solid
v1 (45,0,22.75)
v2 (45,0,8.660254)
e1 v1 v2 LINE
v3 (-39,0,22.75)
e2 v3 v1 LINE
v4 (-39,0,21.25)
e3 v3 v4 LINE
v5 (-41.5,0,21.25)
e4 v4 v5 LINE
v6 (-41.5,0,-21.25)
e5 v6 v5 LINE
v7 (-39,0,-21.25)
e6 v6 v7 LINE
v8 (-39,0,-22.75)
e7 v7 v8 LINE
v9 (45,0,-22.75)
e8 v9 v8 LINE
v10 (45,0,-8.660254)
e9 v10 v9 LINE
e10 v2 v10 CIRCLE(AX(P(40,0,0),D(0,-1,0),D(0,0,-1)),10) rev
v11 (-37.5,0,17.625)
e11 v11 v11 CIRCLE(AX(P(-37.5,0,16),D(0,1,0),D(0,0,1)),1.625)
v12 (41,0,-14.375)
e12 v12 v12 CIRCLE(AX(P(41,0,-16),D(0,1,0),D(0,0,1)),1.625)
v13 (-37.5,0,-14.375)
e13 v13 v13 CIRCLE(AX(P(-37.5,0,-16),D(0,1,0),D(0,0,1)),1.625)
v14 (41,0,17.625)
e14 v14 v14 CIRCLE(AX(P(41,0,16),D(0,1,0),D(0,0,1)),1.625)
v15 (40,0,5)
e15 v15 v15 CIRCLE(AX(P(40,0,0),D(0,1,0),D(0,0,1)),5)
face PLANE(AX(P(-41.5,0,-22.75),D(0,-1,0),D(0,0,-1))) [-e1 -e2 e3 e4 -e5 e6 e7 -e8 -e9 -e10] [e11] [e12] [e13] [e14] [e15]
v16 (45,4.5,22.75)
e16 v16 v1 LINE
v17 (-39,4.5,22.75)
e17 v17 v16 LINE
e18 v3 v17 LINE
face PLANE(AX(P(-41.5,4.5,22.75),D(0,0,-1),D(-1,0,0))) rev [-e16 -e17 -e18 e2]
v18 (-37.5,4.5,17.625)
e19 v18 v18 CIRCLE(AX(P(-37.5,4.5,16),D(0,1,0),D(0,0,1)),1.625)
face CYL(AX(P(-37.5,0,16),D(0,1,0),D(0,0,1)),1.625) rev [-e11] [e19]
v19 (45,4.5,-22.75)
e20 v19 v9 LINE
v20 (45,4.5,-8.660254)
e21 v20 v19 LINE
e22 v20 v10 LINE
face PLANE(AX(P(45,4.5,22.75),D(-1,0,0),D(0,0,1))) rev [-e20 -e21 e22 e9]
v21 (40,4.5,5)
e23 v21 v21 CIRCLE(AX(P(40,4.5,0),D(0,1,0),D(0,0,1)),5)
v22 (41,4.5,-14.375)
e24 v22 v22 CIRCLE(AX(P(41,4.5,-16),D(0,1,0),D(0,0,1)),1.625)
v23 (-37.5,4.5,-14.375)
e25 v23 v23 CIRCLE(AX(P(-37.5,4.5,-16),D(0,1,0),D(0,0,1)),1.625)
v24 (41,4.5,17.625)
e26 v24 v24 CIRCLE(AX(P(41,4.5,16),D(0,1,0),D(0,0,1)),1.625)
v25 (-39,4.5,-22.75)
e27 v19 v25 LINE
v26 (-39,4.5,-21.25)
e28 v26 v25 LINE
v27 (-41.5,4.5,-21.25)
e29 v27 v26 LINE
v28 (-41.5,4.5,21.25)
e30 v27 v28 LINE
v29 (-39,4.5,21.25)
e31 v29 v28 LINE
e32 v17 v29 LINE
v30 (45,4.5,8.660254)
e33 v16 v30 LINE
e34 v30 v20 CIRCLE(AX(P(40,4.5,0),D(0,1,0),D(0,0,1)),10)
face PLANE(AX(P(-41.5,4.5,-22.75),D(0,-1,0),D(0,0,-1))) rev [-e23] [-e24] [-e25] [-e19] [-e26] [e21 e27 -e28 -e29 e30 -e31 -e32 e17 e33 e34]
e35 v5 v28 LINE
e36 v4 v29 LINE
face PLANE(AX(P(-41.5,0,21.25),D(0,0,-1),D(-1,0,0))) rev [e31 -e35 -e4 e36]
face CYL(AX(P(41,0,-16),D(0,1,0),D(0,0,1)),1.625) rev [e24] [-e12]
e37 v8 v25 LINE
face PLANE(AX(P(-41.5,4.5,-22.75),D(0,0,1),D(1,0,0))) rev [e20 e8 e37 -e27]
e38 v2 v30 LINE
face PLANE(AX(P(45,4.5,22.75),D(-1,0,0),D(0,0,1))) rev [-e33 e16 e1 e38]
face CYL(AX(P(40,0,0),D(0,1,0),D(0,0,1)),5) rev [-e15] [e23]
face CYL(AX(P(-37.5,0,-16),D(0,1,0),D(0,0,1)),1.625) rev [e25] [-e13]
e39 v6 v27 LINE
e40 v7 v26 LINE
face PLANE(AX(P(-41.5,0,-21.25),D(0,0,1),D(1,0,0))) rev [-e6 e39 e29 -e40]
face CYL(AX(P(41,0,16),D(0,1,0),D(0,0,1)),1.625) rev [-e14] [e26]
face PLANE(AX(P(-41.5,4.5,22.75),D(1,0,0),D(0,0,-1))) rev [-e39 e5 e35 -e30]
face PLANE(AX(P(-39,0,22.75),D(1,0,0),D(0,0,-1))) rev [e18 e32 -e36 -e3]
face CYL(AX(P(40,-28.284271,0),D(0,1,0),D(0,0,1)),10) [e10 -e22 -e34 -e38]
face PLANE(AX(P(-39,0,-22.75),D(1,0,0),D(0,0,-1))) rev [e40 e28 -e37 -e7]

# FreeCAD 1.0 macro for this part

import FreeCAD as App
import Part
import Sketcher
from FreeCAD import Vector
Q = App.Units.Quantity

doc = App.newDocument("Part")
params = doc.addObject("Spreadsheet::Sheet", "Params")
for row, (alias, value) in enumerate([
    ("sketch1_width", "86.5 mm"),
    ("sketch1_height", "45.5 mm"),
    ("pad1_length", "4.5 mm"),
    ("sketch2_diameter", "3.25 mm"),
    ("sketch3_diameter", "20 mm"),
    ("pad2_length", "4.5 mm"),
    ("sketch4_diameter", "10 mm"),
    ("sketch5_width", "2.5 mm"),
    ("sketch5_height", "1.5 mm"),
], start=1):
    params.set(f"A{row}", alias)
    params.set(f"B{row}", "=" + value)
    params.setAlias(f"B{row}", alias)

body = doc.addObject("PartDesign::Body", "Body")

sketch1 = body.newObject("Sketcher::SketchObject", "Sketch")
sketch1.AttachmentSupport = (doc.getObject("XZ_Plane"), [""])
sketch1.MapMode = "FlatFace"
sketch1.addGeometry(Part.LineSegment(Vector(-42, -23, 0), Vector(-42, 23, 0)), False)
sketch1.addGeometry(Part.LineSegment(Vector(-42, 23, 0), Vector(45, 23, 0)), False)
sketch1.addGeometry(Part.LineSegment(Vector(45, 23, 0), Vector(45, -23, 0)), False)
sketch1.addGeometry(Part.LineSegment(Vector(45, -23, 0), Vector(-42, -23, 0)), False)
sketch1.addConstraint(Sketcher.Constraint("Coincident", 0, 2, 1, 1))
sketch1.addConstraint(Sketcher.Constraint("Coincident", 1, 2, 2, 1))
sketch1.addConstraint(Sketcher.Constraint("Coincident", 2, 2, 3, 1))
sketch1.addConstraint(Sketcher.Constraint("Coincident", 3, 2, 0, 1))
sketch1.addConstraint(Sketcher.Constraint("Vertical", 0))
sketch1.addConstraint(Sketcher.Constraint("Horizontal", 1))
sketch1.addConstraint(Sketcher.Constraint("Vertical", 2))
sketch1.addConstraint(Sketcher.Constraint("Horizontal", 3))
sketch1.addConstraint(Sketcher.Constraint("DistanceX", 1, 1, 1, 2, Q("86.5 mm")))
sketch1.addConstraint(Sketcher.Constraint("DistanceY", 0, 1, 0, 2, Q("45.5 mm")))
sketch1.addConstraint(Sketcher.Constraint("DistanceX", -1, 1, 1, 2, Q("45 mm")))
sketch1.addConstraint(Sketcher.Constraint("DistanceY", -1, 1, 0, 2, Q("22.75 mm")))
sketch1.setExpression("Constraints[8]", "Params.sketch1_width")
sketch1.setExpression("Constraints[9]", "Params.sketch1_height")
pad1 = body.newObject("PartDesign::Pad", "Pad")
pad1.Profile = sketch1
pad1.setExpression("Length", "Params.pad1_length")
pad1.Reversed = True

sketch2 = body.newObject("Sketcher::SketchObject", "Sketch001")
sketch2.AttachmentSupport = (doc.getObject("XZ_Plane"), [""])
sketch2.MapMode = "FlatFace"
sketch2.AttachmentOffset = App.Placement(Vector(0, 0, -4.5), App.Rotation())
sketch2.addGeometry(Part.Circle(Vector(-37.5, 16, 0), Vector(0, 0, 1), 1.6), False)
sketch2.addGeometry(Part.Circle(Vector(-37.5, -16, 0), Vector(0, 0, 1), 1.6), False)
sketch2.addGeometry(Part.Circle(Vector(41, -16, 0), Vector(0, 0, 1), 1.6), False)
sketch2.addGeometry(Part.Circle(Vector(41, 16, 0), Vector(0, 0, 1), 1.6), False)
sketch2.addConstraint(Sketcher.Constraint("Equal", 0, 1))
sketch2.addConstraint(Sketcher.Constraint("Equal", 1, 2))
sketch2.addConstraint(Sketcher.Constraint("Equal", 2, 3))
sketch2.addConstraint(Sketcher.Constraint("Symmetric", 0, 3, 1, 3, -1))
sketch2.addConstraint(Sketcher.Constraint("Symmetric", 2, 3, 3, 3, -1))
sketch2.addConstraint(Sketcher.Constraint("Horizontal", 1, 3, 2, 3))
sketch2.addConstraint(Sketcher.Constraint("Diameter", 0, Q("3.25 mm")))
sketch2.addConstraint(Sketcher.Constraint("DistanceY", -1, 1, 0, 3, Q("16 mm")))
sketch2.addConstraint(Sketcher.Constraint("DistanceX", -1, 1, 2, 3, Q("41 mm")))
sketch2.addConstraint(Sketcher.Constraint("DistanceX", 0, 3, -1, 1, Q("37.5 mm")))
sketch2.setExpression("Constraints[6]", "Params.sketch2_diameter")
pocket1 = body.newObject("PartDesign::Pocket", "Pocket")
pocket1.Profile = sketch2
pocket1.Type = "ThroughAll"
pocket1.Reversed = True

sketch3 = body.newObject("Sketcher::SketchObject", "Sketch002")
sketch3.AttachmentSupport = (doc.getObject("XZ_Plane"), [""])
sketch3.MapMode = "FlatFace"
sketch3.AttachmentOffset = App.Placement(Vector(0, 0, -4.5), App.Rotation())
sketch3.addGeometry(Part.Circle(Vector(40, 0, 0), Vector(0, 0, 1), 10), False)
sketch3.addConstraint(Sketcher.Constraint("PointOnObject", 0, 3, -1))
sketch3.addConstraint(Sketcher.Constraint("Diameter", 0, Q("20 mm")))
sketch3.addConstraint(Sketcher.Constraint("DistanceX", -1, 1, 0, 3, Q("40 mm")))
sketch3.setExpression("Constraints[1]", "Params.sketch3_diameter")
pad2 = body.newObject("PartDesign::Pad", "Pad001")
pad2.Profile = sketch3
pad2.setExpression("Length", "Params.pad2_length")

sketch4 = body.newObject("Sketcher::SketchObject", "Sketch003")
sketch4.AttachmentSupport = (doc.getObject("XZ_Plane"), [""])
sketch4.MapMode = "FlatFace"
sketch4.AttachmentOffset = App.Placement(Vector(0, 0, -4.5), App.Rotation())
sketch4.addGeometry(Part.Circle(Vector(40, 0, 0), Vector(0, 0, 1), 5), False)
sketch4.addConstraint(Sketcher.Constraint("PointOnObject", 0, 3, -1))
sketch4.addConstraint(Sketcher.Constraint("Diameter", 0, Q("10 mm")))
sketch4.addConstraint(Sketcher.Constraint("DistanceX", -1, 1, 0, 3, Q("40 mm")))
sketch4.setExpression("Constraints[1]", "Params.sketch4_diameter")
pocket2 = body.newObject("PartDesign::Pocket", "Pocket001")
pocket2.Profile = sketch4
pocket2.Type = "ThroughAll"
pocket2.Reversed = True

sketch5 = body.newObject("Sketcher::SketchObject", "Sketch004")
sketch5.AttachmentSupport = (doc.getObject("XZ_Plane"), [""])
sketch5.MapMode = "FlatFace"
sketch5.AttachmentOffset = App.Placement(Vector(0, 0, -4.5), App.Rotation())
sketch5.addGeometry(Part.LineSegment(Vector(-41.5, -22.8, 0), Vector(-41.5, -21.2, 0)), False)
sketch5.addGeometry(Part.LineSegment(Vector(-41.5, -21.2, 0), Vector(-39, -21.2, 0)), False)
sketch5.addGeometry(Part.LineSegment(Vector(-39, -21.2, 0), Vector(-39, -22.8, 0)), False)
sketch5.addGeometry(Part.LineSegment(Vector(-39, -22.8, 0), Vector(-41.5, -22.8, 0)), False)
sketch5.addGeometry(Part.LineSegment(Vector(-41.5, 21.2, 0), Vector(-41.5, 22.8, 0)), False)
sketch5.addGeometry(Part.LineSegment(Vector(-41.5, 22.8, 0), Vector(-39, 22.8, 0)), False)
sketch5.addGeometry(Part.LineSegment(Vector(-39, 22.8, 0), Vector(-39, 21.2, 0)), False)
sketch5.addGeometry(Part.LineSegment(Vector(-39, 21.2, 0), Vector(-41.5, 21.2, 0)), False)
sketch5.addConstraint(Sketcher.Constraint("Coincident", 0, 2, 1, 1))
sketch5.addConstraint(Sketcher.Constraint("Coincident", 1, 2, 2, 1))
sketch5.addConstraint(Sketcher.Constraint("Coincident", 2, 2, 3, 1))
sketch5.addConstraint(Sketcher.Constraint("Coincident", 3, 2, 0, 1))
sketch5.addConstraint(Sketcher.Constraint("Coincident", 4, 2, 5, 1))
sketch5.addConstraint(Sketcher.Constraint("Coincident", 5, 2, 6, 1))
sketch5.addConstraint(Sketcher.Constraint("Coincident", 6, 2, 7, 1))
sketch5.addConstraint(Sketcher.Constraint("Coincident", 7, 2, 4, 1))
sketch5.addConstraint(Sketcher.Constraint("Vertical", 0))
sketch5.addConstraint(Sketcher.Constraint("Horizontal", 1))
sketch5.addConstraint(Sketcher.Constraint("Vertical", 2))
sketch5.addConstraint(Sketcher.Constraint("Horizontal", 3))
sketch5.addConstraint(Sketcher.Constraint("Vertical", 4))
sketch5.addConstraint(Sketcher.Constraint("Horizontal", 5))
sketch5.addConstraint(Sketcher.Constraint("Vertical", 6))
sketch5.addConstraint(Sketcher.Constraint("Horizontal", 7))
sketch5.addConstraint(Sketcher.Constraint("Symmetric", 3, 2, 4, 2, -1))
sketch5.addConstraint(Sketcher.Constraint("Symmetric", 1, 2, 6, 2, -1))
sketch5.addConstraint(Sketcher.Constraint("DistanceX", 1, 1, 1, 2, Q("2.5 mm")))
sketch5.addConstraint(Sketcher.Constraint("DistanceY", 0, 1, 0, 2, Q("1.5 mm")))
sketch5.addConstraint(Sketcher.Constraint("DistanceX", 1, 2, -1, 1, Q("39 mm")))
sketch5.addConstraint(Sketcher.Constraint("DistanceY", 0, 2, 4, 2, Q("44 mm")))
sketch5.setExpression("Constraints[18]", "Params.sketch5_width")
sketch5.setExpression("Constraints[19]", "Params.sketch5_height")
pocket3 = body.newObject("PartDesign::Pocket", "Pocket002")
pocket3.Profile = sketch5
pocket3.Type = "ThroughAll"
pocket3.Reversed = True

doc.recompute()
